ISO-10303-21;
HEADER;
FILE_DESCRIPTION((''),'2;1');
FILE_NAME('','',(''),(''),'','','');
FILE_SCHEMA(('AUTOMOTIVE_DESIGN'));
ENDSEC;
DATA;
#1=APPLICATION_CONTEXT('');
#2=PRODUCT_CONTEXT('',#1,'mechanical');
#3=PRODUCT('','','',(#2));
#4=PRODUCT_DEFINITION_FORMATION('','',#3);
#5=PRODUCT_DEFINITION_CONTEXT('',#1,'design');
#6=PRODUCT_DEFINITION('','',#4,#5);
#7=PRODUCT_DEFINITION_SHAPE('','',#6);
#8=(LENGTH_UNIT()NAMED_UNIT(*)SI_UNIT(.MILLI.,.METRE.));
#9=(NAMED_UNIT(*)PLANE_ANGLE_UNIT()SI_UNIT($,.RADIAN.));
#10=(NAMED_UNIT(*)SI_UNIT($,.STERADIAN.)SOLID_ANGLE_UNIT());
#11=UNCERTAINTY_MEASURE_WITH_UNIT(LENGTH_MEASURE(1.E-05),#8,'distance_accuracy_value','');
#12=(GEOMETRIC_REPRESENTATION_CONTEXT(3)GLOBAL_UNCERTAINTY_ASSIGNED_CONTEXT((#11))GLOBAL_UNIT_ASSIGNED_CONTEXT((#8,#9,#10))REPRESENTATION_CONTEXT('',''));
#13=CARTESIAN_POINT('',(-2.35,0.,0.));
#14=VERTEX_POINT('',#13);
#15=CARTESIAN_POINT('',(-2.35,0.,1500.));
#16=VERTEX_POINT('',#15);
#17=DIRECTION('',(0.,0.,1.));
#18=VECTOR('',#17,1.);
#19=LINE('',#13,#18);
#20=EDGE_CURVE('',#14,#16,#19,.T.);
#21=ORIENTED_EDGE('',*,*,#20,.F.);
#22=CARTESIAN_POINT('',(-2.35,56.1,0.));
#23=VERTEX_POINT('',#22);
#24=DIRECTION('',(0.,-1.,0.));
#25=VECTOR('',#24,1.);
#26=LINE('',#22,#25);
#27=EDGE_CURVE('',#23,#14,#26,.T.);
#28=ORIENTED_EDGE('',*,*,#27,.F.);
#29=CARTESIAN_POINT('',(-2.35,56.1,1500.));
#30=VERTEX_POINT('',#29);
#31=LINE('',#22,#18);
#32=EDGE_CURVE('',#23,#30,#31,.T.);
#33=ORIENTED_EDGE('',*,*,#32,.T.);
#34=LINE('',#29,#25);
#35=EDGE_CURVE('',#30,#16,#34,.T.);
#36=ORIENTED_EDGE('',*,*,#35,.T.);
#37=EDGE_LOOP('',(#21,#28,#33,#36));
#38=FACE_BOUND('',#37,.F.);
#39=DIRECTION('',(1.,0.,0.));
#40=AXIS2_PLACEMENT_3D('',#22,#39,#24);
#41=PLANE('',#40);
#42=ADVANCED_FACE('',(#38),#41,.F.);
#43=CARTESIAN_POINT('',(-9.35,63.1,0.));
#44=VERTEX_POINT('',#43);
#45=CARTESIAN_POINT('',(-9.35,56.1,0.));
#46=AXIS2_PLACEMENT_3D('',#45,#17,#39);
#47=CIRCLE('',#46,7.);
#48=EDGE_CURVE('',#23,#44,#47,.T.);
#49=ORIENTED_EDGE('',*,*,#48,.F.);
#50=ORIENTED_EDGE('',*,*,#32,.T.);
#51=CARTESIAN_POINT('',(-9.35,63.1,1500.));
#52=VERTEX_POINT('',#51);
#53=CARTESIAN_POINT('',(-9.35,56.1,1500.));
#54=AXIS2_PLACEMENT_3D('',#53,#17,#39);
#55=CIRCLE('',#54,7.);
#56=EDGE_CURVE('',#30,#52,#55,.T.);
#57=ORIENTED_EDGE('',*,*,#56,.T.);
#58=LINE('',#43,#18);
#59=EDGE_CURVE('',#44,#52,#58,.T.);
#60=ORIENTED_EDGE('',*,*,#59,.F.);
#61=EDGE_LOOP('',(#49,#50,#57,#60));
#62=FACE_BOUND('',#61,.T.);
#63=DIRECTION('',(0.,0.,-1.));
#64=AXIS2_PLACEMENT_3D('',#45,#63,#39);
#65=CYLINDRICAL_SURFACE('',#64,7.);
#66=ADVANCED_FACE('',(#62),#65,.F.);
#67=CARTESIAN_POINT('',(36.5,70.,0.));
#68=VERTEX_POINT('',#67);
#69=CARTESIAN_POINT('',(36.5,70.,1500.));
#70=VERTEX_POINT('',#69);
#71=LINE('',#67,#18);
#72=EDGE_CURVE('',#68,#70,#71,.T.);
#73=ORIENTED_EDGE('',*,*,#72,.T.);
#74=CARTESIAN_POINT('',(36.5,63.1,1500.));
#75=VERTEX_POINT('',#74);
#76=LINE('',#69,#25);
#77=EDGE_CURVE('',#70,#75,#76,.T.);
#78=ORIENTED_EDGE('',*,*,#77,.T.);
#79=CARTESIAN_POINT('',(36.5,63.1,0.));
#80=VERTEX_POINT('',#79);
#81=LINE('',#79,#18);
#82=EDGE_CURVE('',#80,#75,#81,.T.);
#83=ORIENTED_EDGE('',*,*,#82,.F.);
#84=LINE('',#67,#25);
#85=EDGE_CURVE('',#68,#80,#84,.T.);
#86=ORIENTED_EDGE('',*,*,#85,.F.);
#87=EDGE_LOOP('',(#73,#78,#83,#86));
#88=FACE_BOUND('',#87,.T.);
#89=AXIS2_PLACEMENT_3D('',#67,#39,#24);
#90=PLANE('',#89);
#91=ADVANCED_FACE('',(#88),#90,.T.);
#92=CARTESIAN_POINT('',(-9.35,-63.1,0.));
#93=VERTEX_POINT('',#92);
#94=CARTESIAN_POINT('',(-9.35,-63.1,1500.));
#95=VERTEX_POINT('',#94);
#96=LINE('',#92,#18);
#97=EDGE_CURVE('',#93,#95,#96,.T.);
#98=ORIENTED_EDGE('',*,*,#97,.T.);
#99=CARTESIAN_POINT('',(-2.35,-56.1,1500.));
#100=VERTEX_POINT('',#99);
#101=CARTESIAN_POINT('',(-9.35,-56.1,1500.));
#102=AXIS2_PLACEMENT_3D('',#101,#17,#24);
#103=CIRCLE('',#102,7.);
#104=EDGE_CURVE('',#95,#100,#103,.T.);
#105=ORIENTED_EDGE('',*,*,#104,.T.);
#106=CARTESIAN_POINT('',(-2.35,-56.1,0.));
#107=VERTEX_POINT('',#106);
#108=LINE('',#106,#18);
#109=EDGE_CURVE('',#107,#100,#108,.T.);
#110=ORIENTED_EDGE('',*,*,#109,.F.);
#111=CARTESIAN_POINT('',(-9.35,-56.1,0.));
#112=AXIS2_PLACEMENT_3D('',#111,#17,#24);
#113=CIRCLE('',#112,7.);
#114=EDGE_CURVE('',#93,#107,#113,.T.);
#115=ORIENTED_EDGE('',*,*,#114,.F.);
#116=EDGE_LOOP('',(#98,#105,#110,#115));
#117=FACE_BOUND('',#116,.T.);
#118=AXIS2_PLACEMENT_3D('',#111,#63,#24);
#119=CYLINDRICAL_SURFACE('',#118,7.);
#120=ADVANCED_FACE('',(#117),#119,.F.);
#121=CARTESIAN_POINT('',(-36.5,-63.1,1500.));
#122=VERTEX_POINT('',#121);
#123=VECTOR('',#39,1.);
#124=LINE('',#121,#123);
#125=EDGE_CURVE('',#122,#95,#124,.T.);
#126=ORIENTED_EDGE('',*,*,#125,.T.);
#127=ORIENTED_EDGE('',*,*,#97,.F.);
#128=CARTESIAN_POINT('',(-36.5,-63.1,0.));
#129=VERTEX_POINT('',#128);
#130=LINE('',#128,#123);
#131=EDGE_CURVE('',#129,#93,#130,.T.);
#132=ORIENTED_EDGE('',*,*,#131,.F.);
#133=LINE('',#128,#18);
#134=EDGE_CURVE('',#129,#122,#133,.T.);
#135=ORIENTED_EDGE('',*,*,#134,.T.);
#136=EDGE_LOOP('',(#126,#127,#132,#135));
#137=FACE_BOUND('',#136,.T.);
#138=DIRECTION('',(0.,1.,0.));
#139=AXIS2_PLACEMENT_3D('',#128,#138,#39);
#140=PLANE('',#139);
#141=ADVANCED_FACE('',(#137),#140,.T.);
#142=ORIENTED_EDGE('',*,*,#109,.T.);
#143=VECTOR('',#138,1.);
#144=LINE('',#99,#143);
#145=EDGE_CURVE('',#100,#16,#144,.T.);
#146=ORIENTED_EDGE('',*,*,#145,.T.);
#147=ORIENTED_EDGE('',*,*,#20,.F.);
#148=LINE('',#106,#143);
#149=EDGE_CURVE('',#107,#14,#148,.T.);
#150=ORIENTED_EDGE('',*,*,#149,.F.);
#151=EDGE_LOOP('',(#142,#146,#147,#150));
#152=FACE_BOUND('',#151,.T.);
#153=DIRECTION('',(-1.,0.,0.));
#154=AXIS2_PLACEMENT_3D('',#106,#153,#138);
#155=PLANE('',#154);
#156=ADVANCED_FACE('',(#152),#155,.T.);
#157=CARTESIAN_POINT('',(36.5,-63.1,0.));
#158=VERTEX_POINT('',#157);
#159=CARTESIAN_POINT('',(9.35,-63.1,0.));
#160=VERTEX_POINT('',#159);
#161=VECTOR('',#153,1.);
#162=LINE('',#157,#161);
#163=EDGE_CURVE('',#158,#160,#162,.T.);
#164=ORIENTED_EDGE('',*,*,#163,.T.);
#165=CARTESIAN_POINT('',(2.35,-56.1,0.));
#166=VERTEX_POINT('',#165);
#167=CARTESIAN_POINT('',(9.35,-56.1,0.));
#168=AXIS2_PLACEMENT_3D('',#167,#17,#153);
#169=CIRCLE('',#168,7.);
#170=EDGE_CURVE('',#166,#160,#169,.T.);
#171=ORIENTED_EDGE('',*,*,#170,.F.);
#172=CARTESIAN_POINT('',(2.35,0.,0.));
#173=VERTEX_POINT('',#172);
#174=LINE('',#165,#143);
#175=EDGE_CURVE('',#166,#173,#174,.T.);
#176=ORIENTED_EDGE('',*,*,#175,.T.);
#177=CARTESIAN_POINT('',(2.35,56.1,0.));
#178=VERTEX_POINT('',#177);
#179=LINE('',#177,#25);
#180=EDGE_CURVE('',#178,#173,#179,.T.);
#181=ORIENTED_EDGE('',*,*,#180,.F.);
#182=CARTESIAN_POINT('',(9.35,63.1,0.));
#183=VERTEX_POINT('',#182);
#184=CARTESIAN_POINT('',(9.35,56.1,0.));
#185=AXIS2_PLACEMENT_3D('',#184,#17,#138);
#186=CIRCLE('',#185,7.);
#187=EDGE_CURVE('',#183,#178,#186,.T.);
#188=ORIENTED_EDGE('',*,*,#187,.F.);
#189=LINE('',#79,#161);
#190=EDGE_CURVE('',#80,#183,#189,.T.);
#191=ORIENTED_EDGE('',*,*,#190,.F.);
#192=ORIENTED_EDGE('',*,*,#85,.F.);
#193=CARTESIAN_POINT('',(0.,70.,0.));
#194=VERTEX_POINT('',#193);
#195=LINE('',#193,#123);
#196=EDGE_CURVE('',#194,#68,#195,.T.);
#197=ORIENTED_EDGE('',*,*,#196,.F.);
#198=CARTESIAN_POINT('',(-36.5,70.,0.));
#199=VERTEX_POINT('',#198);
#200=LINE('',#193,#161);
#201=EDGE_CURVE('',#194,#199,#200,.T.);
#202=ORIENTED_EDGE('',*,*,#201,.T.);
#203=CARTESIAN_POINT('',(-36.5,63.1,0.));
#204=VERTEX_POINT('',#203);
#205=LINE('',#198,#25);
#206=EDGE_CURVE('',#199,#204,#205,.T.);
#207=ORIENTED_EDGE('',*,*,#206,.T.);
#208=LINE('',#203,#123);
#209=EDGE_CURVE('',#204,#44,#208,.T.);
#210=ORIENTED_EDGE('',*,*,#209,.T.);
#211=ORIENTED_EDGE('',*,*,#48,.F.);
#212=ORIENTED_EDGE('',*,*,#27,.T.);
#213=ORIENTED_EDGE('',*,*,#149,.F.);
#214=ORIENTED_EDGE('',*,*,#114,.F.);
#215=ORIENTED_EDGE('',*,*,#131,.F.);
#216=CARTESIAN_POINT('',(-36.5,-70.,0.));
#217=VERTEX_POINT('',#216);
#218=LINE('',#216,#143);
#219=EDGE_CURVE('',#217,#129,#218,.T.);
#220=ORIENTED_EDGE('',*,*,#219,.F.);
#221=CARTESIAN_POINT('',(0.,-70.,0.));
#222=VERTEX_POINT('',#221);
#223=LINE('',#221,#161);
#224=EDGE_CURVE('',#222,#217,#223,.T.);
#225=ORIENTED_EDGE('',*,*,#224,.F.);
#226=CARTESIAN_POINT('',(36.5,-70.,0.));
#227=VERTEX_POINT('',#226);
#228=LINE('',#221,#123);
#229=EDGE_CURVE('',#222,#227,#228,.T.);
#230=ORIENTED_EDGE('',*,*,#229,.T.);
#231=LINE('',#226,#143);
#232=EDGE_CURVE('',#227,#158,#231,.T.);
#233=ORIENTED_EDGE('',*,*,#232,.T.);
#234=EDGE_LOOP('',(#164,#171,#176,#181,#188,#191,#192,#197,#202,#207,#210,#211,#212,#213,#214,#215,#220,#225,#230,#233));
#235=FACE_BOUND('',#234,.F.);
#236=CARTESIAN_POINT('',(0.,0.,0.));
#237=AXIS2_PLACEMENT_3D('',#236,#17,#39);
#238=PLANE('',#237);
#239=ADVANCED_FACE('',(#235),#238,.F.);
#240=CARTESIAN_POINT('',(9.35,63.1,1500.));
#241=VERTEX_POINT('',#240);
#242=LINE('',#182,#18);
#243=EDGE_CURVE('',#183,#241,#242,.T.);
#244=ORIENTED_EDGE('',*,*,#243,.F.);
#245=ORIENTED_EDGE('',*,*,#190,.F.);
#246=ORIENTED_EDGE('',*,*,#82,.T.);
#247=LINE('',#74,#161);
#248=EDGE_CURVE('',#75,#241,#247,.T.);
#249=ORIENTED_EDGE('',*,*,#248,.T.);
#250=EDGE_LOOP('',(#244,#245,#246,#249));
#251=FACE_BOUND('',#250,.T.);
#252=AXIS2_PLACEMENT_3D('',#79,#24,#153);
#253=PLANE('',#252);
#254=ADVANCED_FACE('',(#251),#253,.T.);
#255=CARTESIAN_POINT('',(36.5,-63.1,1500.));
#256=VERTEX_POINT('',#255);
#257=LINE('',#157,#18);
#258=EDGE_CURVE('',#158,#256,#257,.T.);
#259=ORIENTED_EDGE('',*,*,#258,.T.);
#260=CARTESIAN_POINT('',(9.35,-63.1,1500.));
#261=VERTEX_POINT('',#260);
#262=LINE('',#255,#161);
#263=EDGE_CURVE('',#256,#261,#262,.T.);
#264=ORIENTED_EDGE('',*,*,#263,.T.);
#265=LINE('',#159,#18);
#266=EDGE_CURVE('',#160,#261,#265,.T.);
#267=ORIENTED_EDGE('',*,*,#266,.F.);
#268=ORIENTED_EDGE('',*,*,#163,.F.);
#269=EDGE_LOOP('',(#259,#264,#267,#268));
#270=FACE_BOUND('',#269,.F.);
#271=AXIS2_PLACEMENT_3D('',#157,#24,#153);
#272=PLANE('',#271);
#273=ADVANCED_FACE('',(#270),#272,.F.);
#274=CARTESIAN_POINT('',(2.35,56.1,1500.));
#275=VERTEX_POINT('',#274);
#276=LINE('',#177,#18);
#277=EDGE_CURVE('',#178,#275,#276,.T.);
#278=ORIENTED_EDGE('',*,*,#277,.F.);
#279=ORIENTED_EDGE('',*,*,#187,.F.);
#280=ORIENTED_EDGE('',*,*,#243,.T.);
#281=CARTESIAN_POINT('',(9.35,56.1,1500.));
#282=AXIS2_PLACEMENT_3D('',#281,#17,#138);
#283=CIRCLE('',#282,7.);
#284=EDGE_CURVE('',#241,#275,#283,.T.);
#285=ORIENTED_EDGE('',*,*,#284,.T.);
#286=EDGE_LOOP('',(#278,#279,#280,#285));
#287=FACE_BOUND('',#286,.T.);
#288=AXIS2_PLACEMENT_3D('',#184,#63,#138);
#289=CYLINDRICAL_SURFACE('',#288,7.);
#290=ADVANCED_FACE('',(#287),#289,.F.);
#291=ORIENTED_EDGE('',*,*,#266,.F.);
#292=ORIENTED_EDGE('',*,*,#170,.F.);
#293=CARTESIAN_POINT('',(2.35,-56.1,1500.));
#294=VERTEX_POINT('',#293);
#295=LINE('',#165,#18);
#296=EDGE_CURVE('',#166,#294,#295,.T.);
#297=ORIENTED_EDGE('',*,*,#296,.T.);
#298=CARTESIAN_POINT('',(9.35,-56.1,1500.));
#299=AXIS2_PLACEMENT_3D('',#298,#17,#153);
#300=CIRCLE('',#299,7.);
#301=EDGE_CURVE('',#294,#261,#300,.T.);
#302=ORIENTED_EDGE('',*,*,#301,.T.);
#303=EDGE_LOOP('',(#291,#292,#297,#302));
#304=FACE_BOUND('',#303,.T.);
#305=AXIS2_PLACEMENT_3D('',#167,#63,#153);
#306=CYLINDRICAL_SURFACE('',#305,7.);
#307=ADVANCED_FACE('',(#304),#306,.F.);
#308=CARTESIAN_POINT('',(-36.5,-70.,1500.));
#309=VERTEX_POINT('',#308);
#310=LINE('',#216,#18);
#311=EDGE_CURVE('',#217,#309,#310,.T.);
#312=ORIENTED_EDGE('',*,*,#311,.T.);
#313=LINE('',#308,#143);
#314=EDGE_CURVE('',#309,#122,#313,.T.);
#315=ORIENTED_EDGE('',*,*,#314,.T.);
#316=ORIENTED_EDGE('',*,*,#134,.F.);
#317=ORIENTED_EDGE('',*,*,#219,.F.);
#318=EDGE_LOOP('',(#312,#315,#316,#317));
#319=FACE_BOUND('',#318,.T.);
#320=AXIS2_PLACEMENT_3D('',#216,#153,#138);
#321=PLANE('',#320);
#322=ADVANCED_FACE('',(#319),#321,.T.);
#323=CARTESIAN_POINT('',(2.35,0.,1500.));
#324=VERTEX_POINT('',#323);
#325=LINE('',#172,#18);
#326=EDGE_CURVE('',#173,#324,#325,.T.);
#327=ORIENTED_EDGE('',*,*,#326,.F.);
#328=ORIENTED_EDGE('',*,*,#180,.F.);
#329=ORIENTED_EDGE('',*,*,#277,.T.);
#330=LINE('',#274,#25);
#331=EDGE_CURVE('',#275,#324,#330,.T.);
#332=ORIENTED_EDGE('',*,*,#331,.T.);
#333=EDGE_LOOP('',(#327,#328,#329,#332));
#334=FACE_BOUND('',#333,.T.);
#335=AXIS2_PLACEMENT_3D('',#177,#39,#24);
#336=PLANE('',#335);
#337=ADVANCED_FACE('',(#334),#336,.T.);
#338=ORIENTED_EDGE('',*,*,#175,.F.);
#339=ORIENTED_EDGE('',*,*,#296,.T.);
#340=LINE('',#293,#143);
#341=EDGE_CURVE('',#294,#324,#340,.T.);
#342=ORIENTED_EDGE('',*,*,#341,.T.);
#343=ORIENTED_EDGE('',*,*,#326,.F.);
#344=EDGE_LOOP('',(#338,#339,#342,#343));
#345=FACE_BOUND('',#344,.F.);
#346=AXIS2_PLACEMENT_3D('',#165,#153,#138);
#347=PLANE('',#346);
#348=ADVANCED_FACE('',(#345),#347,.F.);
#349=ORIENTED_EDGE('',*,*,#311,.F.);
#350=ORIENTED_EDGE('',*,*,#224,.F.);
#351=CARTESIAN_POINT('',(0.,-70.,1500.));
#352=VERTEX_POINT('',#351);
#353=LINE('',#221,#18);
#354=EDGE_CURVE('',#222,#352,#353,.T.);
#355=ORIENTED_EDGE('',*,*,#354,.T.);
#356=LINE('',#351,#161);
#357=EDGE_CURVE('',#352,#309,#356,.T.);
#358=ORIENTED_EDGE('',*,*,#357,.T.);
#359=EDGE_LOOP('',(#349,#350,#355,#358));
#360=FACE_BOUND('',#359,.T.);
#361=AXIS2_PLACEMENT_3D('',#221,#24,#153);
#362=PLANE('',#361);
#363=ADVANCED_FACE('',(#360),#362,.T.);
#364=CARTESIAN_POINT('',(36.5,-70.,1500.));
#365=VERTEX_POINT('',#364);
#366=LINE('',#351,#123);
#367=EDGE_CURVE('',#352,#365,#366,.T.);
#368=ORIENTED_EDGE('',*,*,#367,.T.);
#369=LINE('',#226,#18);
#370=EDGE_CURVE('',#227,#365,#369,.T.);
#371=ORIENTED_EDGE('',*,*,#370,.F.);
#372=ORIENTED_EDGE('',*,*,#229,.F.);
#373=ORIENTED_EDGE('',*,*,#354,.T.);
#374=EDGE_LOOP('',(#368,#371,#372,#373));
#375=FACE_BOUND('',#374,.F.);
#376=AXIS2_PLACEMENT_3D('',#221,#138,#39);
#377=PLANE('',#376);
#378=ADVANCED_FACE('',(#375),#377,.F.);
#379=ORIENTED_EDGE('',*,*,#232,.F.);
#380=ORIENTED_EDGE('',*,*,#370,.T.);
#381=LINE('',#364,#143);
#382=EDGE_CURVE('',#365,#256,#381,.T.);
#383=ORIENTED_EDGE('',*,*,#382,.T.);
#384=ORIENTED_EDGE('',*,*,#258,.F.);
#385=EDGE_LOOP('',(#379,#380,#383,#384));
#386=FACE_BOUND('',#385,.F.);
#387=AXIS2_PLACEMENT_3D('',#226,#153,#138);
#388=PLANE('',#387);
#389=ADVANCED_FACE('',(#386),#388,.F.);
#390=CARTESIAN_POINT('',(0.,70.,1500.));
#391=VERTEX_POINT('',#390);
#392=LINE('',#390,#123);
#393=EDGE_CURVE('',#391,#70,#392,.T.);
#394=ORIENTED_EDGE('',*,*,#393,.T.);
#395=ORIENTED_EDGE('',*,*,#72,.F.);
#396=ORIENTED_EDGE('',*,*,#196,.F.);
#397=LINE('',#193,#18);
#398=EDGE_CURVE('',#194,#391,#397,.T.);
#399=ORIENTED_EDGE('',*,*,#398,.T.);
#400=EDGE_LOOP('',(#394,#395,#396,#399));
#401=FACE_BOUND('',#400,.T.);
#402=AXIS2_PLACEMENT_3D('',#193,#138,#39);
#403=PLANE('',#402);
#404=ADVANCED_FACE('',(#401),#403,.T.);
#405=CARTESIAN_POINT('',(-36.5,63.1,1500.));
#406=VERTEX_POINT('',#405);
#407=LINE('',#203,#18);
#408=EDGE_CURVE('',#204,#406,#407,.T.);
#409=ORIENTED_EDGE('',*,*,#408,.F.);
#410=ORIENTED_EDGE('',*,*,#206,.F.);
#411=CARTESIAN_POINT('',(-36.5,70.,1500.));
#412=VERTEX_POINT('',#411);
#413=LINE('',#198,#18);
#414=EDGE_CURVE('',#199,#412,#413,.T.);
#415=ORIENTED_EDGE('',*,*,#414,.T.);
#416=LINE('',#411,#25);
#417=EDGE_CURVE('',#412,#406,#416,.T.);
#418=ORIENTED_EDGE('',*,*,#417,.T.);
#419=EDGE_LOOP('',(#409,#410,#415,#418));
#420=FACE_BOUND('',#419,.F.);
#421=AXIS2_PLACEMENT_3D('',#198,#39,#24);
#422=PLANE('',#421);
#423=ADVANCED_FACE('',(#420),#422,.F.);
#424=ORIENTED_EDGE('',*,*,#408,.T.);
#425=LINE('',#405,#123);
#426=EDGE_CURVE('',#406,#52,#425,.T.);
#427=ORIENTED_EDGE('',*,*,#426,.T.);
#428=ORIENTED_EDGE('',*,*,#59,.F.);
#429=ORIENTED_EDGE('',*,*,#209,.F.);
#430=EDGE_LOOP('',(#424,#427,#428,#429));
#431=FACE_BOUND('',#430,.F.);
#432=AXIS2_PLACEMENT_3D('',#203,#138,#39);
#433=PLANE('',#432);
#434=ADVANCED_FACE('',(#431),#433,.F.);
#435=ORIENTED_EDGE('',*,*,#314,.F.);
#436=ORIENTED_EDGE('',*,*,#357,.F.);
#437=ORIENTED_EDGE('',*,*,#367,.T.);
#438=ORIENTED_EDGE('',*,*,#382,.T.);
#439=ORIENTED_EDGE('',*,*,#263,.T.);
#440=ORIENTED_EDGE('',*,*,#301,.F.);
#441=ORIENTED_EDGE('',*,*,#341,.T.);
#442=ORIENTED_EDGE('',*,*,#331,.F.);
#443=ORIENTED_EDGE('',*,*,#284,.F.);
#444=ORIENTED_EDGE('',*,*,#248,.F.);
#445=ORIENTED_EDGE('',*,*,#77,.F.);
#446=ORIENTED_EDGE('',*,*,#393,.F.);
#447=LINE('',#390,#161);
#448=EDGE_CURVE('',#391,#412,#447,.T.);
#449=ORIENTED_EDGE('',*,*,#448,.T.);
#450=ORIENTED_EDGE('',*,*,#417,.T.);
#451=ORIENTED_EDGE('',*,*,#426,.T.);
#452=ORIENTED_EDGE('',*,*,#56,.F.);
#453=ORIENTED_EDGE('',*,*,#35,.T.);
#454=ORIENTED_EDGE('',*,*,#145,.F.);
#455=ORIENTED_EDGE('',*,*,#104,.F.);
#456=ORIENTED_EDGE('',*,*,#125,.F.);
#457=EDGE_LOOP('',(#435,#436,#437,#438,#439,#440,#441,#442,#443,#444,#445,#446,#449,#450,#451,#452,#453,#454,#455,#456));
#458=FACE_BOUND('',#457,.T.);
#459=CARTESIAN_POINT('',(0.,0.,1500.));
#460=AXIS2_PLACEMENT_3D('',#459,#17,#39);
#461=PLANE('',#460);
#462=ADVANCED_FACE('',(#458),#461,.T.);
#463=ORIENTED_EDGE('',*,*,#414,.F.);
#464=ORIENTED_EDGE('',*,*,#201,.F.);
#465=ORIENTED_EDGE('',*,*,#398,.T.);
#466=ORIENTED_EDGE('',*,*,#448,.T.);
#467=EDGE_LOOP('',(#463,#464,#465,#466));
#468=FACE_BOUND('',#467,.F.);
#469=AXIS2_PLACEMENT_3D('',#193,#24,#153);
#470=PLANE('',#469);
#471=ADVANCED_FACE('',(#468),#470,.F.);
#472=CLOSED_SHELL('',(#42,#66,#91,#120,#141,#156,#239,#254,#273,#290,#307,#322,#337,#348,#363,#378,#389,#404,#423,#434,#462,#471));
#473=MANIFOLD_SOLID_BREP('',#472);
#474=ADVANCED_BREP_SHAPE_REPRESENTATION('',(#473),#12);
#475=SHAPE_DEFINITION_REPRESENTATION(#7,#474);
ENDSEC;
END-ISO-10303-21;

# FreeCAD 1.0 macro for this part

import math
import FreeCAD as App
import Part
import Sketcher
from FreeCAD import Vector

doc = App.newDocument("Part")
params = doc.addObject("Spreadsheet::Sheet", "Params")
for row, (alias, value) in enumerate([
    ("sketch1_radius", "7 mm"),
    ("sketch1_height", "6.9 mm"),
    ("pad1_length", "1500 mm"),
], start=1):
    params.set(f"A{row}", alias)
    params.set(f"B{row}", "=" + value)
    params.setAlias(f"B{row}", alias)

body = doc.addObject("PartDesign::Body", "Body")

sketch1 = doc.addObject("Sketcher::SketchObject", "Sketch")
body.addObject(sketch1)
sketch1.AttachmentSupport = (doc.XY_Plane, [""])
sketch1.MapMode = "FlatFace"
sketch1.addGeometry([
    Part.LineSegment(Vector(-36, -63, 0), Vector(-36, -70, 0)),
    Part.LineSegment(Vector(-36, -70, 0), Vector(36, -70, 0)),
    Part.LineSegment(Vector(36, -70, 0), Vector(36, -63, 0)),
    Part.LineSegment(Vector(36, -63, 0), Vector(9, -63, 0)),
    Part.ArcOfCircle(Part.Circle(Vector(9, -56, 0), Vector(0, 0, 1), 7), math.radians(180), math.radians(270)),
    Part.LineSegment(Vector(2, -56, 0), Vector(2, 56, 0)),
    Part.ArcOfCircle(Part.Circle(Vector(9, 56, 0), Vector(0, 0, 1), 7), math.radians(90), math.radians(180)),
    Part.LineSegment(Vector(9, 63, 0), Vector(36, 63, 0)),
    Part.LineSegment(Vector(36, 63, 0), Vector(36, 70, 0)),
    Part.LineSegment(Vector(36, 70, 0), Vector(-36, 70, 0)),
    Part.LineSegment(Vector(-36, 70, 0), Vector(-36, 63, 0)),
    Part.LineSegment(Vector(-36, 63, 0), Vector(-9, 63, 0)),
    Part.ArcOfCircle(Part.Circle(Vector(-9, 56, 0), Vector(0, 0, 1), 7), math.radians(0), math.radians(90)),
    Part.LineSegment(Vector(-2, 56, 0), Vector(-2, -56, 0)),
    Part.ArcOfCircle(Part.Circle(Vector(-9, -56, 0), Vector(0, 0, 1), 7), math.radians(-90), math.radians(0)),
    Part.LineSegment(Vector(-9, -63, 0), Vector(-36, -63, 0)),
], False)
sketch1.addConstraint([
    Sketcher.Constraint("Coincident", 0, 2, 1, 1),
    Sketcher.Constraint("Coincident", 1, 2, 2, 1),
    Sketcher.Constraint("Coincident", 2, 2, 3, 1),
    Sketcher.Constraint("Tangent", 3, 2, 4, 2),
    Sketcher.Constraint("Tangent", 4, 1, 5, 1),
    Sketcher.Constraint("Tangent", 5, 2, 6, 2),
    Sketcher.Constraint("Tangent", 6, 1, 7, 1),
    Sketcher.Constraint("Coincident", 7, 2, 8, 1),
    Sketcher.Constraint("Coincident", 8, 2, 9, 1),
    Sketcher.Constraint("Coincident", 9, 2, 10, 1),
    Sketcher.Constraint("Coincident", 10, 2, 11, 1),
    Sketcher.Constraint("Tangent", 11, 2, 12, 2),
    Sketcher.Constraint("Tangent", 12, 1, 13, 1),
    Sketcher.Constraint("Tangent", 13, 2, 14, 2),
    Sketcher.Constraint("Tangent", 14, 1, 15, 1),
    Sketcher.Constraint("Coincident", 15, 2, 0, 1),
    Sketcher.Constraint("Vertical", 0),
    Sketcher.Constraint("Horizontal", 1),
    Sketcher.Constraint("Vertical", 2),
    Sketcher.Constraint("Horizontal", 3),
    Sketcher.Constraint("Vertical", 5),
    Sketcher.Constraint("Horizontal", 7),
    Sketcher.Constraint("Vertical", 8),
    Sketcher.Constraint("Horizontal", 9),
    Sketcher.Constraint("Vertical", 10),
    Sketcher.Constraint("Horizontal", 11),
    Sketcher.Constraint("Vertical", 13),
    Sketcher.Constraint("Horizontal", 15),
    Sketcher.Constraint("Equal", 4, 6),
    Sketcher.Constraint("Equal", 6, 12),
    Sketcher.Constraint("Equal", 12, 14),
    Sketcher.Constraint("Symmetric", 4, 3, 12, 3, -1, 1),
    Sketcher.Constraint("Symmetric", 0, 2, 8, 2, -1, 1),
    Sketcher.Constraint("Symmetric", 7, 2, 10, 2, -2),
    Sketcher.Constraint("Symmetric", 2, 2, 15, 2, -2),
    Sketcher.Constraint("Radius", 4, 7.0),
    Sketcher.Constraint("DistanceY", 0, 2, 0, 1, 6.9),
    Sketcher.Constraint("DistanceY", 0, 2, -1, 1, 70.0),
    Sketcher.Constraint("DistanceX", 0, 2, -1, 1, 36.5),
    Sketcher.Constraint("DistanceX", -1, 1, 4, 1, 2.35),
])
sketch1.setExpression("Constraints[35]", "Params.sketch1_radius")
sketch1.setExpression("Constraints[36]", "Params.sketch1_height")
pad1 = doc.addObject("PartDesign::Pad", "Pad")
body.addObject(pad1)
pad1.Profile = sketch1
pad1.setExpression("Length", "Params.pad1_length")

doc.recompute()
